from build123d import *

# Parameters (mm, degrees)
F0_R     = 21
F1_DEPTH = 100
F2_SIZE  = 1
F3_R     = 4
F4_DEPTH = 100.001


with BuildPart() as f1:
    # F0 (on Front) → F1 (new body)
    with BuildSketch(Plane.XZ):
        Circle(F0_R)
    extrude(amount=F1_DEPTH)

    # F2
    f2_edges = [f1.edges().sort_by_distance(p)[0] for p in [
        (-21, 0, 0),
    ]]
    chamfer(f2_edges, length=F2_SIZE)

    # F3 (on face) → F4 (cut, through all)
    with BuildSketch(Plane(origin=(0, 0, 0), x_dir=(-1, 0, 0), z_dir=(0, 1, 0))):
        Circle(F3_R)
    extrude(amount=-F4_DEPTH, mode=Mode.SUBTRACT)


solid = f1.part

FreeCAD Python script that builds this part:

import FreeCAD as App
import Part
import Sketcher

V = App.Vector


def edges_at(feature, points):
    """Names of the edges that pass closest to the given points."""
    edges = feature.Shape.Edges
    near = lambda p: min(range(len(edges)), key=lambda i: edges[i].distToShape(Part.Vertex(*p))[0])
    return sorted({f"Edge{near(p) + 1}" for p in points})

doc = App.newDocument("Part")
body = doc.addObject("PartDesign::Body", "Body")

# Sketch on XZ plane
sketch1 = body.newObject("Sketcher::SketchObject", "Sketch")
sketch1.AttachmentSupport = (doc.getObject("XZ_Plane"), [""])
sketch1.MapMode = "FlatFace"
sketch1.addGeometry(Part.Circle(V(0, 0, 0), V(0, 0, 1), 21), False)
sketch1.addConstraint(Sketcher.Constraint("Coincident", 0, 3, -1, 1))
sketch1.addConstraint(Sketcher.Constraint("Diameter", 0, 42.0))
pad1 = body.newObject("PartDesign::Pad", "Pad")
pad1.Profile = sketch1
pad1.Length = 100
doc.recompute()

chamfer = body.newObject("PartDesign::Chamfer", "Chamfer")
chamfer.Base = (pad1, edges_at(pad1, [(-21, 0, 0)]))
chamfer.Size = 1

# Sketch on XZ plane
sketch2 = body.newObject("Sketcher::SketchObject", "Sketch001")
sketch2.AttachmentSupport = (doc.getObject("XZ_Plane"), [""])
sketch2.MapMode = "FlatFace"
sketch2.addGeometry(Part.Circle(V(0, 0, 0), V(0, 0, 1), 4), False)
sketch2.addConstraint(Sketcher.Constraint("Coincident", 0, 3, -1, 1))
sketch2.addConstraint(Sketcher.Constraint("Diameter", 0, 8.0))
pocket1 = body.newObject("PartDesign::Pocket", "Pocket")
pocket1.Profile = sketch2
pocket1.Type = "ThroughAll"
pocket1.Reversed = True

doc.recompute()
